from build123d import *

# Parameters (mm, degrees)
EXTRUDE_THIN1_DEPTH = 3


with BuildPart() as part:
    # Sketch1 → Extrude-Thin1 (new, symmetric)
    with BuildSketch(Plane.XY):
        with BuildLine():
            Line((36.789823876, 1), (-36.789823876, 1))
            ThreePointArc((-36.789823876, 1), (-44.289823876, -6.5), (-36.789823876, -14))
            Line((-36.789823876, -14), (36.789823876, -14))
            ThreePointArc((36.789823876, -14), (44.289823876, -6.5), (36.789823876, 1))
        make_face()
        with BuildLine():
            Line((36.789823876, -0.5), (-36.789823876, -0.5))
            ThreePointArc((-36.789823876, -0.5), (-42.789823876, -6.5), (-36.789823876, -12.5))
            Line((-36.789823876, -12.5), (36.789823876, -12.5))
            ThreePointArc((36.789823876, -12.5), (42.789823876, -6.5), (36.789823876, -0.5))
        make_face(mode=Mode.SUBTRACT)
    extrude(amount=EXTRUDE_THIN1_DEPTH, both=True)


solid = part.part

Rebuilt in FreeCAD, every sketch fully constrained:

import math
import FreeCAD as App
import Part
import Sketcher
from FreeCAD import Vector
Q = App.Units.Quantity

doc = App.newDocument("Part")
params = doc.addObject("Spreadsheet::Sheet", "Params")
for row, (alias, value) in enumerate([
    ("sketch1_radius", "6 mm"),
    ("sketch1_radius2", "7.5 mm"),
    ("pad1_length", "6 mm"),
], start=1):
    params.set(f"A{row}", alias)
    params.set(f"B{row}", "=" + value)
    params.setAlias(f"B{row}", alias)

body = doc.addObject("PartDesign::Body", "Body")

sketch1 = body.newObject("Sketcher::SketchObject", "Sketch")
sketch1.AttachmentSupport = (doc.getObject("XY_Plane"), [""])
sketch1.MapMode = "FlatFace"
sketch1.addGeometry(Part.LineSegment(Vector(37, 1, 0), Vector(-37, 1, 0)), False)
sketch1.addGeometry(Part.ArcOfCircle(Part.Circle(Vector(-37, -6, 0), Vector(0, 0, 1), 8), math.radians(90), math.radians(270)), False)
sketch1.addGeometry(Part.LineSegment(Vector(-37, -14, 0), Vector(37, -14, 0)), False)
sketch1.addGeometry(Part.ArcOfCircle(Part.Circle(Vector(37, -6, 0), Vector(0, 0, 1), 8), math.radians(-90), math.radians(90)), False)
sketch1.addGeometry(Part.LineSegment(Vector(-37, 0, 0), Vector(37, 0, 0)), False)
sketch1.addGeometry(Part.ArcOfCircle(Part.Circle(Vector(37, -6, 0), Vector(0, 0, 1), 6), math.radians(-90), math.radians(90)), False)
sketch1.addGeometry(Part.LineSegment(Vector(37, -12, 0), Vector(-37, -12, 0)), False)
sketch1.addGeometry(Part.ArcOfCircle(Part.Circle(Vector(-37, -6, 0), Vector(0, 0, 1), 6), math.radians(90), math.radians(270)), False)
sketch1.addConstraint(Sketcher.Constraint("Tangent", 0, 2, 1, 1))
sketch1.addConstraint(Sketcher.Constraint("Tangent", 1, 2, 2, 1))
sketch1.addConstraint(Sketcher.Constraint("Tangent", 2, 2, 3, 1))
sketch1.addConstraint(Sketcher.Constraint("Tangent", 3, 2, 0, 1))
sketch1.addConstraint(Sketcher.Constraint("Tangent", 4, 2, 5, 2))
sketch1.addConstraint(Sketcher.Constraint("Tangent", 5, 1, 6, 1))
sketch1.addConstraint(Sketcher.Constraint("Tangent", 6, 2, 7, 2))
sketch1.addConstraint(Sketcher.Constraint("Tangent", 7, 1, 4, 1))
sketch1.addConstraint(Sketcher.Constraint("Horizontal", 0))
sketch1.addConstraint(Sketcher.Constraint("Horizontal", 2))
sketch1.addConstraint(Sketcher.Constraint("Horizontal", 4))
sketch1.addConstraint(Sketcher.Constraint("Horizontal", 6))
sketch1.addConstraint(Sketcher.Constraint("Coincident", 5, 3, 3, 3))
sketch1.addConstraint(Sketcher.Constraint("Vertical", 7, 3, 0, 2))
sketch1.addConstraint(Sketcher.Constraint("Radius", 5, Q("6 mm")))
sketch1.addConstraint(Sketcher.Constraint("Radius", 1, Q("7.5 mm")))
sketch1.addConstraint(Sketcher.Constraint("DistanceY", -1, 1, 0, 2, Q("1 mm")))
sketch1.addConstraint(Sketcher.Constraint("DistanceX", 0, 2, 0, 1, Q("73.579648 mm")))
sketch1.addConstraint(Sketcher.Constraint("DistanceX", 1, 3, -1, 1, Q("36.789824 mm")))
sketch1.setExpression("Constraints[14]", "Params.sketch1_radius")
sketch1.setExpression("Constraints[15]", "Params.sketch1_radius2")
pad1 = body.newObject("PartDesign::Pad", "Pad")
pad1.Profile = sketch1
pad1.setExpression("Length", "Params.pad1_length")
pad1.Midplane = True

doc.recompute()
